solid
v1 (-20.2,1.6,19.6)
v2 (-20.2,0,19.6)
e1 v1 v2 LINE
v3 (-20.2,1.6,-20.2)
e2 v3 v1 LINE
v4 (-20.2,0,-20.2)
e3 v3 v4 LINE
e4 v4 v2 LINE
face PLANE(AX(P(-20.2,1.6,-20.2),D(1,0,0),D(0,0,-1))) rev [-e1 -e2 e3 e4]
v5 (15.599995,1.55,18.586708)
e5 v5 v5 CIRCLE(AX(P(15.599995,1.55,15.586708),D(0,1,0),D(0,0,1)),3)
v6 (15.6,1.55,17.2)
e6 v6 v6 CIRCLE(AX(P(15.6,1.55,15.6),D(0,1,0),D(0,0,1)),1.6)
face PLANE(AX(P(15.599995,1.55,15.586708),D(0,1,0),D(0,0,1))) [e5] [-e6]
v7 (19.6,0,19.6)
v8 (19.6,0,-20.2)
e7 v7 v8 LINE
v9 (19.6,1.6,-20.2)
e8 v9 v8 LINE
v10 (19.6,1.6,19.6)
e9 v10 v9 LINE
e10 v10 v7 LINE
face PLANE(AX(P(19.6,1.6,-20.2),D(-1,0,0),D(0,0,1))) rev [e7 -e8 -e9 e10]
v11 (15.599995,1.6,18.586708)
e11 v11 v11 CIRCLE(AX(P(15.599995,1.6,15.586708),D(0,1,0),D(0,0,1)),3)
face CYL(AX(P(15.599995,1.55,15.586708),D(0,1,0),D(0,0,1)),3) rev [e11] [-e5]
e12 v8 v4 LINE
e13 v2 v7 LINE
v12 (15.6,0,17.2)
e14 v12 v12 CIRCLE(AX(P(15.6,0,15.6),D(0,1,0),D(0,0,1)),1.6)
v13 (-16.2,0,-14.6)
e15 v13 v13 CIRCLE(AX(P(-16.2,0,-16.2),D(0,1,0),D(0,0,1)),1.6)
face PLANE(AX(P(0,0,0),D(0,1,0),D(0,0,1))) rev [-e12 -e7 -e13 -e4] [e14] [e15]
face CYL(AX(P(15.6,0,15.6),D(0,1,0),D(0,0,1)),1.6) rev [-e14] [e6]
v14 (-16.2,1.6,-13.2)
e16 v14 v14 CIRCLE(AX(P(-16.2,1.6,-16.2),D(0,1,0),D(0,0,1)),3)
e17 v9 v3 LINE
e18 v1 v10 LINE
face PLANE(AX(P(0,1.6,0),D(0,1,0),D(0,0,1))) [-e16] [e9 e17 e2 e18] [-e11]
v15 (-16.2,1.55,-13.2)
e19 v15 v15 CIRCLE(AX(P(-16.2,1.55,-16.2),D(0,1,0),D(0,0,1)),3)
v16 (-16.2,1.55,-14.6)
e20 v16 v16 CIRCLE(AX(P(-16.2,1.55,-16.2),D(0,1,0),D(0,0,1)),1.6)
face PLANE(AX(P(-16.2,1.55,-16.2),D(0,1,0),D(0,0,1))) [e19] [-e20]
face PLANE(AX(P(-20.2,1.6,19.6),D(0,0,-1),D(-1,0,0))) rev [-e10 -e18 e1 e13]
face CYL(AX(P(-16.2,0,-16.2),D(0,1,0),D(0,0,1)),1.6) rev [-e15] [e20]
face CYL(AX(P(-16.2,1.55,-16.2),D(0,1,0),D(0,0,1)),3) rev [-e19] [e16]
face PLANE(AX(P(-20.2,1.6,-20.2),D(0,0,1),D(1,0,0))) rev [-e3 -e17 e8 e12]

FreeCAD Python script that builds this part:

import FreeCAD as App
import Part
import Sketcher

V = App.Vector
Q = App.Units.Quantity


def add_polygon(sketch, points):
    """Adds a closed chain of lines whose ends are joined by coincident constraints."""
    first, n = sketch.GeometryCount, len(points)
    for a, b in zip(points, points[1:] + points[:1]):
        sketch.addGeometry(Part.LineSegment(App.Vector(*a, 0), App.Vector(*b, 0)), False)
    for i in range(n):
        sketch.addConstraint(Sketcher.Constraint("Coincident", first + i, 2, first + (i + 1) % n, 1))

doc = App.newDocument("Part")
body = doc.addObject("PartDesign::Body", "Body")

# Sketch on XZ plane
sketch1 = doc.addObject("Sketcher::SketchObject", "Sketch")
body.addObject(sketch1)
sketch1.AttachmentSupport = (doc.XZ_Plane, [""])
sketch1.MapMode = "FlatFace"
add_polygon(sketch1, [(-20, -20), (-20, 20), (20, 20), (20, -20)])  # lines 0-3
sketch1.addConstraint([
    Sketcher.Constraint("Vertical", 0),
    Sketcher.Constraint("Horizontal", 1),
    Sketcher.Constraint("Vertical", 2),
    Sketcher.Constraint("Horizontal", 3),
    Sketcher.Constraint("Equal", 3, 0),
    Sketcher.Constraint("DistanceX", 1, 1, 1, 2, Q("39.8 mm")),
    Sketcher.Constraint("DistanceX", 0, 2, -1, 1, Q("20.2 mm")),
    Sketcher.Constraint("DistanceY", -1, 1, 0, 2, Q("19.6 mm")),
])
pad1 = doc.addObject("PartDesign::Pad", "Pad")
body.addObject(pad1)
pad1.Profile = sketch1
pad1.Length = 1.6
pad1.Reversed = True

# Sketch on XZ plane
sketch2 = doc.addObject("Sketcher::SketchObject", "Sketch001")
body.addObject(sketch2)
sketch2.AttachmentSupport = (doc.XZ_Plane, [""])
sketch2.MapMode = "FlatFace"
sketch2.AttachmentOffset = App.Placement(V(0, 0, -1.6), App.Rotation())
sketch2.addGeometry([
    Part.Circle(V(-16.2, -16.2, 0), V(0, 0, 1), 3),
    Part.Circle(V(15.6, 15.6, 0), V(0, 0, 1), 3),
], False)
sketch2.addConstraint([
    Sketcher.Constraint("Equal", 0, 1),
    Sketcher.Constraint("Diameter", 0, Q("6 mm")),
    Sketcher.Constraint("DistanceX", 0, 3, -1, 1, Q("16.2 mm")),
    Sketcher.Constraint("DistanceY", 0, 3, -1, 1, Q("16.2 mm")),
    Sketcher.Constraint("DistanceY", -1, 1, 1, 3, Q("15.586708 mm")),
    Sketcher.Constraint("DistanceX", -1, 1, 1, 3, Q("15.599995 mm")),
])
pocket1 = doc.addObject("PartDesign::Pocket", "Pocket")
body.addObject(pocket1)
pocket1.Profile = sketch2
pocket1.Length = 0.05
pocket1.Reversed = True

# Sketch on XZ plane
sketch3 = doc.addObject("Sketcher::SketchObject", "Sketch002")
body.addObject(sketch3)
sketch3.AttachmentSupport = (doc.XZ_Plane, [""])
sketch3.MapMode = "FlatFace"
sketch3.AttachmentOffset = App.Placement(V(0, 0, -1.6), App.Rotation())
sketch3.addGeometry([
    Part.Circle(V(-16.2, -16.2, 0), V(0, 0, 1), 1.6),
    Part.Circle(V(15.6, 15.6, 0), V(0, 0, 1), 1.6),
], False)
sketch3.addConstraint([
    Sketcher.Constraint("Equal", 0, 1),
    Sketcher.Constraint("Diameter", 0, Q("3.2 mm")),
    Sketcher.Constraint("DistanceX", 0, 3, -1, 1, Q("16.2 mm")),
    Sketcher.Constraint("DistanceY", 0, 3, -1, 1, Q("16.2 mm")),
    Sketcher.Constraint("DistanceX", -1, 1, 1, 3, Q("15.6 mm")),
    Sketcher.Constraint("DistanceY", -1, 1, 1, 3, Q("15.6 mm")),
])
pocket2 = doc.addObject("PartDesign::Pocket", "Pocket001")
body.addObject(pocket2)
pocket2.Profile = sketch3
pocket2.Length = 1.6
pocket2.Reversed = True

doc.recompute()
